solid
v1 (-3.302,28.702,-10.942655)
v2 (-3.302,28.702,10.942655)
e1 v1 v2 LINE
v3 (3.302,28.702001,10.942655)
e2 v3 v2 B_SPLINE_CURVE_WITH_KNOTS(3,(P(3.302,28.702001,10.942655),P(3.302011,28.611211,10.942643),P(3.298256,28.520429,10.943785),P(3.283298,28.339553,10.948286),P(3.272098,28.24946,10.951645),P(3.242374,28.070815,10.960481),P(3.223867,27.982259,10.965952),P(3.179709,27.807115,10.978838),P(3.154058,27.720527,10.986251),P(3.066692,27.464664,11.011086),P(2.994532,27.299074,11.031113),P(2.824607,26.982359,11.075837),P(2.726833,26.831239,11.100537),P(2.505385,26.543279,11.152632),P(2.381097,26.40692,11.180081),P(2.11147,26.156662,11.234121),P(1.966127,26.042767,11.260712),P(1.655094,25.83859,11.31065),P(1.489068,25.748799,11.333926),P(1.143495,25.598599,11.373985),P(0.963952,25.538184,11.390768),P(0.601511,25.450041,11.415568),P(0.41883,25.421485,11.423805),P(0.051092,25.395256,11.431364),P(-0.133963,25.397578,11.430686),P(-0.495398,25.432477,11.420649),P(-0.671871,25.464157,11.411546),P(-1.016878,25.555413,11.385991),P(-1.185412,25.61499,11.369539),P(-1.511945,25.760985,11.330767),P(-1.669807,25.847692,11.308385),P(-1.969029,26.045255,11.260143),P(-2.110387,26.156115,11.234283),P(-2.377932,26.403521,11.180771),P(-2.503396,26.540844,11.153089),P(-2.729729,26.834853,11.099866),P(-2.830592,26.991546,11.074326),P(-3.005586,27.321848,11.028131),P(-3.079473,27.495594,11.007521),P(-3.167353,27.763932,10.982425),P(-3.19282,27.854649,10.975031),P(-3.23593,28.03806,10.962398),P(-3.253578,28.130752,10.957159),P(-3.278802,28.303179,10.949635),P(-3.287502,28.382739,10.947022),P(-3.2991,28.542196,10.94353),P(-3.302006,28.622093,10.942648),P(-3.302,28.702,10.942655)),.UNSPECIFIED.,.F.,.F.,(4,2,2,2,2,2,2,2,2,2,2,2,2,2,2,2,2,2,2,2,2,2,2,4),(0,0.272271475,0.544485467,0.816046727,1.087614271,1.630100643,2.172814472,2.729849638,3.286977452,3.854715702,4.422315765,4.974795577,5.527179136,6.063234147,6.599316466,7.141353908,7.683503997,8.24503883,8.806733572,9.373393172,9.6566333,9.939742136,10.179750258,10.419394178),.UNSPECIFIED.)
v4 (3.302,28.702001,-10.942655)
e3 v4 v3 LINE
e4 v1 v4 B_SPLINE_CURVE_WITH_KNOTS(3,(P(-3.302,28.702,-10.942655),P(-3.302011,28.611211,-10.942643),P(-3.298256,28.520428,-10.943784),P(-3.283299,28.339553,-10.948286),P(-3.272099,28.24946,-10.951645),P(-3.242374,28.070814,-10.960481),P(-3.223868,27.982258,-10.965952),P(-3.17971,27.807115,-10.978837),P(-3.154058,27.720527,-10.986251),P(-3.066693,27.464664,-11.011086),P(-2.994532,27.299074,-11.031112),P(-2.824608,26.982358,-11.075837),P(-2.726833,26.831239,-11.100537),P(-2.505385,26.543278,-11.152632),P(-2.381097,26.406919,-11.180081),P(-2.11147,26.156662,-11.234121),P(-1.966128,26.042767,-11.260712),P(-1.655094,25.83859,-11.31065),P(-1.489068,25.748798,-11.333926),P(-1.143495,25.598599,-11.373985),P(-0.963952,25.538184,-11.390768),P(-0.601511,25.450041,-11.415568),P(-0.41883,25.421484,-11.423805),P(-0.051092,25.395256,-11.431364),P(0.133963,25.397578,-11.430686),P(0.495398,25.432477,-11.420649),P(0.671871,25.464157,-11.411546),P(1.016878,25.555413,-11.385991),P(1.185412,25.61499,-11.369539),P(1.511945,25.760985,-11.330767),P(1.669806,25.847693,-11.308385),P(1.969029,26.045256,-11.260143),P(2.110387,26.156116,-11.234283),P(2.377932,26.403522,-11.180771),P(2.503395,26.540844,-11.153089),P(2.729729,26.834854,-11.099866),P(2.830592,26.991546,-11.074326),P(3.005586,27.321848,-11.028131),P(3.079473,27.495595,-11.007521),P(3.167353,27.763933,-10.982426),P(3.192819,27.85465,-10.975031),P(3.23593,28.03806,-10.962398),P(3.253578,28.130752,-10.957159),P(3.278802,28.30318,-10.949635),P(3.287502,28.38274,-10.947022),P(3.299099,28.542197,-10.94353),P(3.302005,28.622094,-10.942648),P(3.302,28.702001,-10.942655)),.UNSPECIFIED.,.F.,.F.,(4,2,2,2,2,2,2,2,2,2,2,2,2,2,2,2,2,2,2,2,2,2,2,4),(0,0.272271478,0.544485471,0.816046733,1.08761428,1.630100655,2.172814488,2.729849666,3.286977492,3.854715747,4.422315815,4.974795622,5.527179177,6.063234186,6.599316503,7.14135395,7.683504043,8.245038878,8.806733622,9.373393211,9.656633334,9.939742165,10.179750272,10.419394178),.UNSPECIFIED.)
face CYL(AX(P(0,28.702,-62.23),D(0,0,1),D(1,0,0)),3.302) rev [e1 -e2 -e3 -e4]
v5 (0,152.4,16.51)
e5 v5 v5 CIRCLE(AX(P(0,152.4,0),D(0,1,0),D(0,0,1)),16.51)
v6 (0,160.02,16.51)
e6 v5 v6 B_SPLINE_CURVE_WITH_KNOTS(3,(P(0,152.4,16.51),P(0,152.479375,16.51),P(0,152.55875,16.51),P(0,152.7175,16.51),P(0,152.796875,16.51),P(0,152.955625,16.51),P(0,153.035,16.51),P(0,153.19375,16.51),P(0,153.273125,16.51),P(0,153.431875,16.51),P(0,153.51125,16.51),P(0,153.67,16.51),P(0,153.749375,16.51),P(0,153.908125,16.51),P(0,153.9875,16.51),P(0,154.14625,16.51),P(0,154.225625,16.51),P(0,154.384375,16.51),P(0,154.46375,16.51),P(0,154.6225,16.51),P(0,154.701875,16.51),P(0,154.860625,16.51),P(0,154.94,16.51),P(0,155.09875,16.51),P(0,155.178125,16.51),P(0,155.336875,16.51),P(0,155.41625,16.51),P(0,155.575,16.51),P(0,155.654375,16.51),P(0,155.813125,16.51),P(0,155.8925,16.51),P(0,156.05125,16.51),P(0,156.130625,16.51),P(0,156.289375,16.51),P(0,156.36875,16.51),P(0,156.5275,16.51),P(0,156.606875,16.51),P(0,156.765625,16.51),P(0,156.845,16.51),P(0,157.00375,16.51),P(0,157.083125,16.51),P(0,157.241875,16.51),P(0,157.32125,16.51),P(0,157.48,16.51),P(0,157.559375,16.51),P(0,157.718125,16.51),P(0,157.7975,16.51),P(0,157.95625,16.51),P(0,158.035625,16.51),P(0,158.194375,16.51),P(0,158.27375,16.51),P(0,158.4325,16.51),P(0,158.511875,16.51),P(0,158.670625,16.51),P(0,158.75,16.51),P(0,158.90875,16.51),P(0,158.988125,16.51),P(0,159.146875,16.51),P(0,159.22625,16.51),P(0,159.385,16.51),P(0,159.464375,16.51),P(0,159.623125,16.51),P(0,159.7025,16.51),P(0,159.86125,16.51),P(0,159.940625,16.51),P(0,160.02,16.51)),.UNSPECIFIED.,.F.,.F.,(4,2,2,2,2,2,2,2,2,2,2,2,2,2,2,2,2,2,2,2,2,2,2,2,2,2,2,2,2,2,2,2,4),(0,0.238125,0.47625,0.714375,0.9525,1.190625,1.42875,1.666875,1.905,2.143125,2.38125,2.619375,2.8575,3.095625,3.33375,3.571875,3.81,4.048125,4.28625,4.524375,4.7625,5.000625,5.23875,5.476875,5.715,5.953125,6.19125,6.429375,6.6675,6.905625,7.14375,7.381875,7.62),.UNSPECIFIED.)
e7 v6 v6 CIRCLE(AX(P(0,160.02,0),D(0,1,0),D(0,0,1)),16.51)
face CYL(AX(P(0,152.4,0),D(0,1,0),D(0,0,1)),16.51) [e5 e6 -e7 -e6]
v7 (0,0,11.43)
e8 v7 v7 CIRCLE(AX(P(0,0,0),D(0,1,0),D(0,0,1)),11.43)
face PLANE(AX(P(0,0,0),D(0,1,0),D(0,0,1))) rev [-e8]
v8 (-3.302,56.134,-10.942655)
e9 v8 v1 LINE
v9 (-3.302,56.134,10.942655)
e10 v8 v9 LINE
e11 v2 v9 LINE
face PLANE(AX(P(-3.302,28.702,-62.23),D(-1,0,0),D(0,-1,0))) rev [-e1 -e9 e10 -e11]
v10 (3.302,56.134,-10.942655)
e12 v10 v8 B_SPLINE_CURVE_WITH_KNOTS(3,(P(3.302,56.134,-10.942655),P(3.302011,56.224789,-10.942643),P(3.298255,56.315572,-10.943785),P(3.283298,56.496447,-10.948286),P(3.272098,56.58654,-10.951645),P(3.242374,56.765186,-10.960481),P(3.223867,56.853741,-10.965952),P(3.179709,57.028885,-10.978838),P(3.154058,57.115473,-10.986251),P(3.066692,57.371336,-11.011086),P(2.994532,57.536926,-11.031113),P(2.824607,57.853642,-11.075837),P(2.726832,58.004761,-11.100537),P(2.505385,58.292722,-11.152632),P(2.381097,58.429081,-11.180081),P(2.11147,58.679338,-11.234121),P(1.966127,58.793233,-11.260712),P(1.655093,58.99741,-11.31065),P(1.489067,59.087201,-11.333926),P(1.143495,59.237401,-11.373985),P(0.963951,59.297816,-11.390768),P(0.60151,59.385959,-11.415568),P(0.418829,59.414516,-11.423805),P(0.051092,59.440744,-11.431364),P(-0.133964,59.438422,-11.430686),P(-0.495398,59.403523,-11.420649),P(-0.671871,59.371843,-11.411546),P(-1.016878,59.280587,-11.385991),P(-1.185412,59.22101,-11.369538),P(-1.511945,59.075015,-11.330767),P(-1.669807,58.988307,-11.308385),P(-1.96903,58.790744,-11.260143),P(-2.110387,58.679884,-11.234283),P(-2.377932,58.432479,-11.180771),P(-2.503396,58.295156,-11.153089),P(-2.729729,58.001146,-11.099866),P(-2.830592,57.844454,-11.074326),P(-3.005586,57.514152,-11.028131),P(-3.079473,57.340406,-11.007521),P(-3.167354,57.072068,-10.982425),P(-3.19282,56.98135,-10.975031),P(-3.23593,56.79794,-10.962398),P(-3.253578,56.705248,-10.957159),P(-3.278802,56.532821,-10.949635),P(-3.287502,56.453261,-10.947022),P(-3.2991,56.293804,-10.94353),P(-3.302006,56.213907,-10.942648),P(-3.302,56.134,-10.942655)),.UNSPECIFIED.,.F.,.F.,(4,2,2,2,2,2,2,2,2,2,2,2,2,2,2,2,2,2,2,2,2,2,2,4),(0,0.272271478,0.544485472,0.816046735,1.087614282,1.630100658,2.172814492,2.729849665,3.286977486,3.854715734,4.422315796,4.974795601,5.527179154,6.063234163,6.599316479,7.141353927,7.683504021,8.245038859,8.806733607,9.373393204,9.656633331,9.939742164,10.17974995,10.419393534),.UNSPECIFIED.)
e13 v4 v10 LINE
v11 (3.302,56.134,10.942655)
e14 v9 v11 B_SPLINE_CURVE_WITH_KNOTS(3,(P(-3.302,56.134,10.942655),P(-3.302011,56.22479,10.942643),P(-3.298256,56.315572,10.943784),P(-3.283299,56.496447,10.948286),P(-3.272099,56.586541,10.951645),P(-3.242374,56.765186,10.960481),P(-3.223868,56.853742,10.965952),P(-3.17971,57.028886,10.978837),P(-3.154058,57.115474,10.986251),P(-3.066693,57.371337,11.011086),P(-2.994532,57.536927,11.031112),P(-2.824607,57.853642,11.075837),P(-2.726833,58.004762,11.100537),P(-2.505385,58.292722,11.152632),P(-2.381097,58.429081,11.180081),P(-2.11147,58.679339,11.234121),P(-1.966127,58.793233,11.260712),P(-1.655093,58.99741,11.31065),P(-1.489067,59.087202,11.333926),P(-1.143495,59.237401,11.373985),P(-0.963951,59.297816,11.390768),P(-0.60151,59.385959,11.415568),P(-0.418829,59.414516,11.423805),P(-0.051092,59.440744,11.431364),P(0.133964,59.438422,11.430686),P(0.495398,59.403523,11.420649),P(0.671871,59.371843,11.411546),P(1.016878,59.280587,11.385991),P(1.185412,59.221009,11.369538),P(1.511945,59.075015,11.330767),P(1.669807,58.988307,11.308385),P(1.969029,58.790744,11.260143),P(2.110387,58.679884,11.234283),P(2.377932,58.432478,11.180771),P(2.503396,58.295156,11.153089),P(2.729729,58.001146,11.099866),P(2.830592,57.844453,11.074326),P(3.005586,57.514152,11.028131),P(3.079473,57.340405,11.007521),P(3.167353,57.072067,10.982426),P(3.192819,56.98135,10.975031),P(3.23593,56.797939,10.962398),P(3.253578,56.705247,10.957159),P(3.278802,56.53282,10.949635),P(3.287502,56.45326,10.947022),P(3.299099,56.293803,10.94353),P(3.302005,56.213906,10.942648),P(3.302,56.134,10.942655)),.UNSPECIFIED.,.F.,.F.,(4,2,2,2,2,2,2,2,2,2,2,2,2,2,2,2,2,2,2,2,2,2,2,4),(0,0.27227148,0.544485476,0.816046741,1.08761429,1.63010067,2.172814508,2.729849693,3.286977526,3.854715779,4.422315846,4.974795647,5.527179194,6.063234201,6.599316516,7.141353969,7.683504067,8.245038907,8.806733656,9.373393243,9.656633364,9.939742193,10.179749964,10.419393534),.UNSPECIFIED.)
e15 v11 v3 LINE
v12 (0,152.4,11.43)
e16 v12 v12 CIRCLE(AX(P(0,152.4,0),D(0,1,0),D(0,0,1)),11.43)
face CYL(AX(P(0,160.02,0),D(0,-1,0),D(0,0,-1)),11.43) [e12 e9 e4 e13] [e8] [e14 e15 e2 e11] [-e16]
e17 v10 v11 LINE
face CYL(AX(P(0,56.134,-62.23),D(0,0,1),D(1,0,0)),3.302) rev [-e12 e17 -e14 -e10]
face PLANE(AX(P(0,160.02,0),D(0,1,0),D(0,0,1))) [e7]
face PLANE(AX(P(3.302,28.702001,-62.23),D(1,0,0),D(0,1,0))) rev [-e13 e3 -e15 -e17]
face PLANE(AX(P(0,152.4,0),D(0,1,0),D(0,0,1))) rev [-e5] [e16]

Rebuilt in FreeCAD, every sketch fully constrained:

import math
import FreeCAD as App
import Part
import Sketcher
Q = App.Units.Quantity

doc = App.newDocument("Part")
body = doc.addObject("PartDesign::Body", "Body")

# Sketch on XZ plane
sketch1 = doc.addObject("Sketcher::SketchObject", "Sketch")
body.addObject(sketch1)
sketch1.AttachmentSupport = (doc.XZ_Plane, [""])
sketch1.MapMode = "FlatFace"
sketch1.addGeometry(Part.Circle(App.Vector(0, 0, 0), App.Vector(0, 0, 1), 11.43), False)
sketch1.addConstraint([
    Sketcher.Constraint("Coincident", 0, 3, -1, 1),
    Sketcher.Constraint("Diameter", 0, Q("0.9 in")),
])
pad1 = doc.addObject("PartDesign::Pad", "Pad")
body.addObject(pad1)
pad1.Profile = sketch1
pad1.Length = Q("6.3 in")
pad1.Reversed = True

# Sketch on XY plane
sketch2 = doc.addObject("Sketcher::SketchObject", "Sketch001")
body.addObject(sketch2)
sketch2.AttachmentSupport = (doc.XY_Plane, [""])
sketch2.MapMode = "FlatFace"
sketch2.AttachmentOffset = App.Placement(App.Vector(0, 0, 0.45 * 25.4), App.Rotation())
sketch2.addGeometry([
    Part.LineSegment(App.Vector(3.302, 28.702001, 0), App.Vector(3.302, 56.134, 0)),
    Part.ArcOfCircle(Part.Circle(App.Vector(0, 56.134, 0), App.Vector(0, 0, 1), 3.302), math.radians(-0.000006), math.radians(179.999995)),
    Part.LineSegment(App.Vector(-3.302, 56.134, 0), App.Vector(-3.302, 28.702, 0)),
    Part.ArcOfCircle(Part.Circle(App.Vector(0, 28.702, 0), App.Vector(0, 0, 1), 3.302), math.radians(180), math.radians(360.000011)),
], False)
sketch2.addConstraint([
    Sketcher.Constraint("Tangent", 0, 2, 1, 1),
    Sketcher.Constraint("Tangent", 1, 2, 2, 1),
    Sketcher.Constraint("Tangent", 2, 2, 3, 1),
    Sketcher.Constraint("Tangent", 3, 2, 0, 1),
    Sketcher.Constraint("Vertical", 0),
    Sketcher.Constraint("Vertical", 2),
    Sketcher.Constraint("PointOnObject", 1, 3, -2),
    Sketcher.Constraint("Radius", 1, Q("0.13 in")),
    Sketcher.Constraint("DistanceY", 0, 1, 0, 2, Q("1.08 in")),
    Sketcher.Constraint("DistanceY", -1, 1, 1, 3, Q("2.21 in")),
])
pocket1 = doc.addObject("PartDesign::Pocket", "Pocket")
body.addObject(pocket1)
pocket1.Profile = sketch2
pocket1.Length = Q("2.9 in")

# Sketch on XZ plane
sketch3 = doc.addObject("Sketcher::SketchObject", "Sketch002")
body.addObject(sketch3)
sketch3.AttachmentSupport = (doc.XZ_Plane, [""])
sketch3.MapMode = "FlatFace"
sketch3.AttachmentOffset = App.Placement(App.Vector(0, 0, -6 * 25.4), App.Rotation())
sketch3.addGeometry([
    Part.Circle(App.Vector(0, 0, 0), App.Vector(0, 0, 1), 16.51),
    Part.Circle(App.Vector(0, 0, 0), App.Vector(0, 0, 1), 11.43),
], False)
sketch3.addConstraint([
    Sketcher.Constraint("Coincident", 0, 3, -1, 1),
    Sketcher.Constraint("Coincident", 1, 3, -1, 1),
    Sketcher.Constraint("Diameter", 0, Q("1.3 in")),
    Sketcher.Constraint("Diameter", 1, Q("0.9 in")),
])
pad2 = doc.addObject("PartDesign::Pad", "Pad001")
body.addObject(pad2)
pad2.Profile = sketch3
pad2.Length = Q("0.3 in")
pad2.Reversed = True

doc.recompute()
